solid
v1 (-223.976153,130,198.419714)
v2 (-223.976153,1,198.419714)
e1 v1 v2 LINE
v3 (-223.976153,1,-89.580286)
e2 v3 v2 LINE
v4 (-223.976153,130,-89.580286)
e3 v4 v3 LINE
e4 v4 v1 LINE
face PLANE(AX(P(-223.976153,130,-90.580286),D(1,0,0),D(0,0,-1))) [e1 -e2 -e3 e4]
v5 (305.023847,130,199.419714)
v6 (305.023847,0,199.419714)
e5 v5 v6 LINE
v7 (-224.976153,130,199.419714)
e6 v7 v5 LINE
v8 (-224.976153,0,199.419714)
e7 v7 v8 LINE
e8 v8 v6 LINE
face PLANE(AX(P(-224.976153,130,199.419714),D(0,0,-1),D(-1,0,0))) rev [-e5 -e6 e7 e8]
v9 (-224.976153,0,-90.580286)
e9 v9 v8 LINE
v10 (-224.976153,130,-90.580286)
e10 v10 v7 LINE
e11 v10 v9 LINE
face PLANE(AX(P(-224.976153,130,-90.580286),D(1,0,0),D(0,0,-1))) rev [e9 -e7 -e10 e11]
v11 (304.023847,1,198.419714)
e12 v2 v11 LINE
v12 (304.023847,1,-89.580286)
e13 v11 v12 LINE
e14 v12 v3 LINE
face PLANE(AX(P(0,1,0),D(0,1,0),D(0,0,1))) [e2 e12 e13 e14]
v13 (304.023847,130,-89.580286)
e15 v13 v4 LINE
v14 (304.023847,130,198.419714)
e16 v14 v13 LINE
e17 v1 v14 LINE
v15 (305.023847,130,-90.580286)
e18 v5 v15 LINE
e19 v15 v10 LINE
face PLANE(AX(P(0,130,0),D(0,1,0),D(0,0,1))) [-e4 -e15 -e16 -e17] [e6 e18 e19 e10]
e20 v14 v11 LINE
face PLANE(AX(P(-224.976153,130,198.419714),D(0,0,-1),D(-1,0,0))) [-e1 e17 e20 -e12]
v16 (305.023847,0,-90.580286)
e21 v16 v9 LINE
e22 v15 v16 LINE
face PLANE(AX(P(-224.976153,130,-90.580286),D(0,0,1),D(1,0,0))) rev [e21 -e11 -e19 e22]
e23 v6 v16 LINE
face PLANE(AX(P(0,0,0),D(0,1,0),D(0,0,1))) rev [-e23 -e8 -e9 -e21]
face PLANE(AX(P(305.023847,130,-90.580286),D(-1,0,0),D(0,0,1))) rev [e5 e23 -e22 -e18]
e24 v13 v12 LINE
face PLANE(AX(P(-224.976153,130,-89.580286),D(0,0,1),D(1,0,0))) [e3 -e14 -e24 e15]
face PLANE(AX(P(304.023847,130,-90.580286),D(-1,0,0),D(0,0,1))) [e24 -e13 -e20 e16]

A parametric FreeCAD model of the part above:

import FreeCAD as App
import Part
import Sketcher

V = App.Vector


def faces_at(feature, points):
    """Names of the faces that lie closest to the given points."""
    faces = feature.Shape.Faces
    near = lambda p: min(range(len(faces)), key=lambda i: faces[i].distToShape(Part.Vertex(*p))[0])
    return sorted({f"Face{near(p) + 1}" for p in points})

doc = App.newDocument("Part")
body = doc.addObject("PartDesign::Body", "Body")

# Sketch on XZ plane
sketch1 = body.newObject("Sketcher::SketchObject", "Sketch")
sketch1.AttachmentSupport = (doc.getObject("XZ_Plane"), [""])
sketch1.MapMode = "FlatFace"
sketch1.addGeometry([
    Part.LineSegment(V(-225, -91, 0), V(-225, 199, 0)),
    Part.LineSegment(V(-225, 199, 0), V(305, 199, 0)),
    Part.LineSegment(V(305, 199, 0), V(305, -91, 0)),
    Part.LineSegment(V(305, -91, 0), V(-225, -91, 0)),
], False)
sketch1.addConstraint([
    Sketcher.Constraint("Coincident", 0, 2, 1, 1),
    Sketcher.Constraint("Coincident", 1, 2, 2, 1),
    Sketcher.Constraint("Coincident", 2, 2, 3, 1),
    Sketcher.Constraint("Coincident", 3, 2, 0, 1),
    Sketcher.Constraint("Vertical", 0),
    Sketcher.Constraint("Horizontal", 1),
    Sketcher.Constraint("Vertical", 2),
    Sketcher.Constraint("Horizontal", 3),
    Sketcher.Constraint("DistanceX", 1, 1, 1, 2, 530.0),
    Sketcher.Constraint("DistanceY", 0, 1, 0, 2, 290.0),
    Sketcher.Constraint("DistanceX", 0, 2, -1, 1, 224.976153),
    Sketcher.Constraint("DistanceY", -1, 1, 0, 2, 199.419714),
])
pad1 = body.newObject("PartDesign::Pad", "Pad")
pad1.Profile = sketch1
pad1.Length = 130
pad1.Reversed = True
doc.recompute()

thickness = body.newObject("PartDesign::Thickness", "Thickness")
thickness.Base = (pad1, faces_at(pad1, [(40.024, 130, 54.42)]))
thickness.Value = 1
thickness.Reversed = True
thickness.Join = "Intersection"

doc.recompute()
